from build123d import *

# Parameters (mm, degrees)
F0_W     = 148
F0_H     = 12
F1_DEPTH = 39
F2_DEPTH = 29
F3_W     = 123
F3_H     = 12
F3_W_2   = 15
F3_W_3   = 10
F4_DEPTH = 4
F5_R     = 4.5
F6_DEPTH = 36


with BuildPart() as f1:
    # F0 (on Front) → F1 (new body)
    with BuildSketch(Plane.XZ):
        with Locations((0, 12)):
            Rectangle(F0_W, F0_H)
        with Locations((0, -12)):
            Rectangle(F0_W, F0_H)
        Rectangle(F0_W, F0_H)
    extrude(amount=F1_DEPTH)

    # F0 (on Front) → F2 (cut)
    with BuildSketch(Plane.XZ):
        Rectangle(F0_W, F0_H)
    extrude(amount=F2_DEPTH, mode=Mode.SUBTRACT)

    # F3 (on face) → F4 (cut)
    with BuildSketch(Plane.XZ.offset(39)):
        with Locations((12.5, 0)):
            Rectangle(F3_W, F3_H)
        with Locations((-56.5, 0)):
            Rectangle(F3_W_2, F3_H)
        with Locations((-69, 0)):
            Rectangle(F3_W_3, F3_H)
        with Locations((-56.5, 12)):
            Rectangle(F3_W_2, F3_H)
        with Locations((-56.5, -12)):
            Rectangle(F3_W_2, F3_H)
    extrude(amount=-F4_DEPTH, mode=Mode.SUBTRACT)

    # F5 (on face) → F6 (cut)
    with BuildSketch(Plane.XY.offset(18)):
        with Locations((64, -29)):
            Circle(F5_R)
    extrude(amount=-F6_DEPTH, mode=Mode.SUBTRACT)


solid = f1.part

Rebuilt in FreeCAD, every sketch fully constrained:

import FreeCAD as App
import Part
import Sketcher
from FreeCAD import Vector

doc = App.newDocument("Part")
body = doc.addObject("PartDesign::Body", "Body")

sketch1 = doc.addObject("Sketcher::SketchObject", "Sketch")
body.addObject(sketch1)
sketch1.AttachmentSupport = (doc.XZ_Plane, [""])
sketch1.MapMode = "FlatFace"
sketch1.addGeometry(Part.LineSegment(Vector(-74, 18, 0), Vector(-74, -18, 0)), False)
sketch1.addGeometry(Part.LineSegment(Vector(-74, -18, 0), Vector(74, -18, 0)), False)
sketch1.addGeometry(Part.LineSegment(Vector(74, -18, 0), Vector(74, 18, 0)), False)
sketch1.addGeometry(Part.LineSegment(Vector(74, 18, 0), Vector(-74, 18, 0)), False)
sketch1.addConstraint(Sketcher.Constraint("Coincident", 0, 2, 1, 1))
sketch1.addConstraint(Sketcher.Constraint("Coincident", 1, 2, 2, 1))
sketch1.addConstraint(Sketcher.Constraint("Coincident", 2, 2, 3, 1))
sketch1.addConstraint(Sketcher.Constraint("Coincident", 3, 2, 0, 1))
sketch1.addConstraint(Sketcher.Constraint("Vertical", 0))
sketch1.addConstraint(Sketcher.Constraint("Horizontal", 1))
sketch1.addConstraint(Sketcher.Constraint("Vertical", 2))
sketch1.addConstraint(Sketcher.Constraint("Horizontal", 3))
sketch1.addConstraint(Sketcher.Constraint("Symmetric", 0, 2, 2, 2, -1, 1))
sketch1.addConstraint(Sketcher.Constraint("DistanceX", 1, 1, 1, 2, 148.0))
sketch1.addConstraint(Sketcher.Constraint("DistanceY", 0, 2, 0, 1, 36.0))
pad1 = doc.addObject("PartDesign::Pad", "Pad")
body.addObject(pad1)
pad1.Profile = sketch1
pad1.Length = 39

sketch2 = doc.addObject("Sketcher::SketchObject", "Sketch001")
body.addObject(sketch2)
sketch2.AttachmentSupport = (doc.XZ_Plane, [""])
sketch2.MapMode = "FlatFace"
sketch2.addGeometry(Part.LineSegment(Vector(-74, 6, 0), Vector(-74, -6, 0)), False)
sketch2.addGeometry(Part.LineSegment(Vector(-74, -6, 0), Vector(74, -6, 0)), False)
sketch2.addGeometry(Part.LineSegment(Vector(74, -6, 0), Vector(74, 6, 0)), False)
sketch2.addGeometry(Part.LineSegment(Vector(74, 6, 0), Vector(-74, 6, 0)), False)
sketch2.addConstraint(Sketcher.Constraint("Coincident", 0, 2, 1, 1))
sketch2.addConstraint(Sketcher.Constraint("Coincident", 1, 2, 2, 1))
sketch2.addConstraint(Sketcher.Constraint("Coincident", 2, 2, 3, 1))
sketch2.addConstraint(Sketcher.Constraint("Coincident", 3, 2, 0, 1))
sketch2.addConstraint(Sketcher.Constraint("Vertical", 0))
sketch2.addConstraint(Sketcher.Constraint("Horizontal", 1))
sketch2.addConstraint(Sketcher.Constraint("Vertical", 2))
sketch2.addConstraint(Sketcher.Constraint("Horizontal", 3))
sketch2.addConstraint(Sketcher.Constraint("Symmetric", 0, 2, 2, 2, -1, 1))
sketch2.addConstraint(Sketcher.Constraint("DistanceX", 1, 1, 1, 2, 148.0))
sketch2.addConstraint(Sketcher.Constraint("DistanceY", 0, 2, 0, 1, 12.0))
pocket1 = doc.addObject("PartDesign::Pocket", "Pocket")
body.addObject(pocket1)
pocket1.Profile = sketch2
pocket1.Length = 29
pocket1.Reversed = True

sketch3 = doc.addObject("Sketcher::SketchObject", "Sketch002")
body.addObject(sketch3)
sketch3.AttachmentSupport = (doc.XZ_Plane, [""])
sketch3.MapMode = "FlatFace"
sketch3.AttachmentOffset = App.Placement(Vector(0, 0, 39), App.Rotation())
sketch3.addGeometry(Part.LineSegment(Vector(74, -6, 0), Vector(74, 6, 0)), False)
sketch3.addGeometry(Part.LineSegment(Vector(74, 6, 0), Vector(-49, 6, 0)), False)
sketch3.addGeometry(Part.LineSegment(Vector(-49, 6, 0), Vector(-49, 18, 0)), False)
sketch3.addGeometry(Part.LineSegment(Vector(-49, 18, 0), Vector(-64, 18, 0)), False)
sketch3.addGeometry(Part.LineSegment(Vector(-64, 18, 0), Vector(-64, 6, 0)), False)
sketch3.addGeometry(Part.LineSegment(Vector(-64, 6, 0), Vector(-74, 6, 0)), False)
sketch3.addGeometry(Part.LineSegment(Vector(-74, 6, 0), Vector(-74, -6, 0)), False)
sketch3.addGeometry(Part.LineSegment(Vector(-74, -6, 0), Vector(-64, -6, 0)), False)
sketch3.addGeometry(Part.LineSegment(Vector(-64, -6, 0), Vector(-64, -18, 0)), False)
sketch3.addGeometry(Part.LineSegment(Vector(-64, -18, 0), Vector(-49, -18, 0)), False)
sketch3.addGeometry(Part.LineSegment(Vector(-49, -18, 0), Vector(-49, -6, 0)), False)
sketch3.addGeometry(Part.LineSegment(Vector(-49, -6, 0), Vector(74, -6, 0)), False)
sketch3.addConstraint(Sketcher.Constraint("Coincident", 0, 2, 1, 1))
sketch3.addConstraint(Sketcher.Constraint("Coincident", 1, 2, 2, 1))
sketch3.addConstraint(Sketcher.Constraint("Coincident", 2, 2, 3, 1))
sketch3.addConstraint(Sketcher.Constraint("Coincident", 3, 2, 4, 1))
sketch3.addConstraint(Sketcher.Constraint("Coincident", 4, 2, 5, 1))
sketch3.addConstraint(Sketcher.Constraint("Coincident", 5, 2, 6, 1))
sketch3.addConstraint(Sketcher.Constraint("Coincident", 6, 2, 7, 1))
sketch3.addConstraint(Sketcher.Constraint("Coincident", 7, 2, 8, 1))
sketch3.addConstraint(Sketcher.Constraint("Coincident", 8, 2, 9, 1))
sketch3.addConstraint(Sketcher.Constraint("Coincident", 9, 2, 10, 1))
sketch3.addConstraint(Sketcher.Constraint("Coincident", 10, 2, 11, 1))
sketch3.addConstraint(Sketcher.Constraint("Coincident", 11, 2, 0, 1))
sketch3.addConstraint(Sketcher.Constraint("Vertical", 0))
sketch3.addConstraint(Sketcher.Constraint("Horizontal", 1))
sketch3.addConstraint(Sketcher.Constraint("Vertical", 2))
sketch3.addConstraint(Sketcher.Constraint("Horizontal", 3))
sketch3.addConstraint(Sketcher.Constraint("Vertical", 4))
sketch3.addConstraint(Sketcher.Constraint("Horizontal", 5))
sketch3.addConstraint(Sketcher.Constraint("Vertical", 6))
sketch3.addConstraint(Sketcher.Constraint("Horizontal", 7))
sketch3.addConstraint(Sketcher.Constraint("Vertical", 8))
sketch3.addConstraint(Sketcher.Constraint("Horizontal", 9))
sketch3.addConstraint(Sketcher.Constraint("Vertical", 10))
sketch3.addConstraint(Sketcher.Constraint("Horizontal", 11))
sketch3.addConstraint(Sketcher.Constraint("Symmetric", 0, 2, 6, 2, -1, 1))
sketch3.addConstraint(Sketcher.Constraint("Symmetric", 4, 2, 7, 2, -1))
sketch3.addConstraint(Sketcher.Constraint("Symmetric", 2, 2, 9, 2, -1))
sketch3.addConstraint(Sketcher.Constraint("Horizontal", 7, 2, 10, 2))
sketch3.addConstraint(Sketcher.Constraint("Equal", 0, 2))
sketch3.addConstraint(Sketcher.Constraint("DistanceX", 1, 2, 1, 1, 123.0))
sketch3.addConstraint(Sketcher.Constraint("DistanceX", 3, 2, 3, 1, 15.0))
sketch3.addConstraint(Sketcher.Constraint("DistanceX", 5, 2, 5, 1, 10.0))
sketch3.addConstraint(Sketcher.Constraint("DistanceY", 0, 1, 0, 2, 12.0))
pocket2 = doc.addObject("PartDesign::Pocket", "Pocket001")
body.addObject(pocket2)
pocket2.Profile = sketch3
pocket2.Length = 4

sketch4 = doc.addObject("Sketcher::SketchObject", "Sketch003")
body.addObject(sketch4)
sketch4.AttachmentSupport = (doc.XY_Plane, [""])
sketch4.MapMode = "FlatFace"
sketch4.AttachmentOffset = App.Placement(Vector(0, 0, 18), App.Rotation())
sketch4.addGeometry(Part.Circle(Vector(64, -29, 0), Vector(0, 0, 1), 4.5), False)
sketch4.addConstraint(Sketcher.Constraint("Diameter", 0, 9.0))
sketch4.addConstraint(Sketcher.Constraint("DistanceX", -1, 1, 0, 3, 64.0))
sketch4.addConstraint(Sketcher.Constraint("DistanceY", 0, 3, -1, 1, 29.0))
pocket3 = doc.addObject("PartDesign::Pocket", "Pocket002")
body.addObject(pocket3)
pocket3.Profile = sketch4
pocket3.Length = 36

doc.recompute()
